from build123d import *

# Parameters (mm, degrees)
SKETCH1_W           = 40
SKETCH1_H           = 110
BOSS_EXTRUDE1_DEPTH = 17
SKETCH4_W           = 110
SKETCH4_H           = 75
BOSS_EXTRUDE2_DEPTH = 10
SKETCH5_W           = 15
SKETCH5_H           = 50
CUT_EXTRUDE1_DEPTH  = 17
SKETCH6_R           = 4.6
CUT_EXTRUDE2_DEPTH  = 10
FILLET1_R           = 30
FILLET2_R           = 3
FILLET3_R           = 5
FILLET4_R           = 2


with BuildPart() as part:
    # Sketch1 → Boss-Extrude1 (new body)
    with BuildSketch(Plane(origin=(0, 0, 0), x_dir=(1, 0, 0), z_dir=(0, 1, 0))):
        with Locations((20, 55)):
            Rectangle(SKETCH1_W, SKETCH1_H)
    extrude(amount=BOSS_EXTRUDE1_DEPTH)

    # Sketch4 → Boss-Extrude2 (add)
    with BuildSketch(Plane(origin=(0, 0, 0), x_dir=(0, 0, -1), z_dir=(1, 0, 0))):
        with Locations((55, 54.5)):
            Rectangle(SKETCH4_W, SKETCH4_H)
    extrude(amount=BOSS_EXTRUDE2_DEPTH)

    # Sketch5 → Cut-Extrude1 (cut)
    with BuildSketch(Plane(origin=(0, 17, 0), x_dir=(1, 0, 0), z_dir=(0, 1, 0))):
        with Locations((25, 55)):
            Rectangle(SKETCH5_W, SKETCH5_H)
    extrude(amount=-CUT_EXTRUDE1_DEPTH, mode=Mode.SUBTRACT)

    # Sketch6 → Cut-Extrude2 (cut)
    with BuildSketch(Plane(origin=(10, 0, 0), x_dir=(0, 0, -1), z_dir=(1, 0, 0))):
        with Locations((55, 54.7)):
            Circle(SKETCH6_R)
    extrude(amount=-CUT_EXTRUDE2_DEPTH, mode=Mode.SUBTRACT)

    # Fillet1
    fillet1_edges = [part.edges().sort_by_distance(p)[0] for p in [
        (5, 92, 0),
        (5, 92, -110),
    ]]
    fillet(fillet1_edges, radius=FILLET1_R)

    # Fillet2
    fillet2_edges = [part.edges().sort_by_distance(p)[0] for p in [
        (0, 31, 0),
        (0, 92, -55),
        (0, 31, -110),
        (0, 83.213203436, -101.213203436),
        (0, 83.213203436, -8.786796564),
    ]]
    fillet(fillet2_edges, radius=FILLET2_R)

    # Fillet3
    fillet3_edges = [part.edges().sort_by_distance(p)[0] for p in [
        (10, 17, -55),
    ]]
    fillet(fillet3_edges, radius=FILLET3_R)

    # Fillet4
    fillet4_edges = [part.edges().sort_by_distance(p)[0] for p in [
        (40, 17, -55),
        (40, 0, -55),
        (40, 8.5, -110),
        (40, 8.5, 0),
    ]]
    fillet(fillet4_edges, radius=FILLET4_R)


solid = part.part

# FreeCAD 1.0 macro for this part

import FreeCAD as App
import Part
import Sketcher

V = App.Vector
Q = App.Units.Quantity


def edges_at(feature, points):
    """Names of the edges that pass closest to the given points."""
    edges = feature.Shape.Edges
    near = lambda p: min(range(len(edges)), key=lambda i: edges[i].distToShape(Part.Vertex(*p))[0])
    return sorted({f"Edge{near(p) + 1}" for p in points})

doc = App.newDocument("Part")
body = doc.addObject("PartDesign::Body", "Body")

# Sketch on XZ plane
sketch1 = body.newObject("Sketcher::SketchObject", "Sketch")
sketch1.AttachmentSupport = (doc.getObject("XZ_Plane"), [""])
sketch1.MapMode = "FlatFace"
sketch1.addGeometry([
    Part.LineSegment(V(0, -110, 0), V(0, 0, 0)),
    Part.LineSegment(V(0, 0, 0), V(40, 0, 0)),
    Part.LineSegment(V(40, 0, 0), V(40, -110, 0)),
    Part.LineSegment(V(40, -110, 0), V(0, -110, 0)),
], False)
sketch1.addConstraint([
    Sketcher.Constraint("Coincident", 0, 2, 1, 1),
    Sketcher.Constraint("Coincident", 1, 2, 2, 1),
    Sketcher.Constraint("Coincident", 2, 2, 3, 1),
    Sketcher.Constraint("Coincident", 3, 2, 0, 1),
    Sketcher.Constraint("Vertical", 0),
    Sketcher.Constraint("Horizontal", 1),
    Sketcher.Constraint("Vertical", 2),
    Sketcher.Constraint("Horizontal", 3),
    Sketcher.Constraint("Coincident", 0, 2, -1, 1),
    Sketcher.Constraint("DistanceX", 1, 1, 1, 2, Q("40 mm")),
    Sketcher.Constraint("DistanceY", 0, 1, 0, 2, Q("110 mm")),
])
pad1 = body.newObject("PartDesign::Pad", "Pad")
pad1.Profile = sketch1
pad1.Length = 17
pad1.Reversed = True

# Sketch on YZ plane
sketch2 = body.newObject("Sketcher::SketchObject", "Sketch001")
sketch2.AttachmentSupport = (doc.getObject("YZ_Plane"), [""])
sketch2.MapMode = "FlatFace"
sketch2.addGeometry([
    Part.LineSegment(V(92, 0, 0), V(17, 0, 0)),
    Part.LineSegment(V(17, 0, 0), V(17, -110, 0)),
    Part.LineSegment(V(17, -110, 0), V(92, -110, 0)),
    Part.LineSegment(V(92, -110, 0), V(92, 0, 0)),
], False)
sketch2.addConstraint([
    Sketcher.Constraint("Coincident", 0, 2, 1, 1),
    Sketcher.Constraint("Coincident", 1, 2, 2, 1),
    Sketcher.Constraint("Coincident", 2, 2, 3, 1),
    Sketcher.Constraint("Coincident", 3, 2, 0, 1),
    Sketcher.Constraint("Horizontal", 0),
    Sketcher.Constraint("Vertical", 1),
    Sketcher.Constraint("Horizontal", 2),
    Sketcher.Constraint("Vertical", 3),
    Sketcher.Constraint("PointOnObject", 0, 2, -1),
    Sketcher.Constraint("DistanceX", 0, 2, 0, 1, Q("75 mm")),
    Sketcher.Constraint("DistanceY", 1, 2, 1, 1, Q("110 mm")),
    Sketcher.Constraint("DistanceX", -1, 1, 0, 2, Q("17 mm")),
])
pad2 = body.newObject("PartDesign::Pad", "Pad001")
pad2.Profile = sketch2
pad2.Length = 10

# Sketch on XZ plane
sketch3 = body.newObject("Sketcher::SketchObject", "Sketch002")
sketch3.AttachmentSupport = (doc.getObject("XZ_Plane"), [""])
sketch3.MapMode = "FlatFace"
sketch3.AttachmentOffset = App.Placement(V(0, 0, -17), App.Rotation())
sketch3.addGeometry([
    Part.LineSegment(V(18, -80, 0), V(18, -30, 0)),
    Part.LineSegment(V(18, -30, 0), V(32, -30, 0)),
    Part.LineSegment(V(32, -30, 0), V(32, -80, 0)),
    Part.LineSegment(V(32, -80, 0), V(18, -80, 0)),
], False)
sketch3.addConstraint([
    Sketcher.Constraint("Coincident", 0, 2, 1, 1),
    Sketcher.Constraint("Coincident", 1, 2, 2, 1),
    Sketcher.Constraint("Coincident", 2, 2, 3, 1),
    Sketcher.Constraint("Coincident", 3, 2, 0, 1),
    Sketcher.Constraint("Vertical", 0),
    Sketcher.Constraint("Horizontal", 1),
    Sketcher.Constraint("Vertical", 2),
    Sketcher.Constraint("Horizontal", 3),
    Sketcher.Constraint("DistanceX", 1, 1, 1, 2, Q("15 mm")),
    Sketcher.Constraint("DistanceY", 0, 1, 0, 2, Q("50 mm")),
    Sketcher.Constraint("DistanceY", 0, 2, -1, 1, Q("30 mm")),
    Sketcher.Constraint("DistanceX", -1, 1, 0, 2, Q("17.5 mm")),
])
pocket1 = body.newObject("PartDesign::Pocket", "Pocket")
pocket1.Profile = sketch3
pocket1.Length = 17
pocket1.Reversed = True

# Sketch on YZ plane
sketch4 = body.newObject("Sketcher::SketchObject", "Sketch003")
sketch4.AttachmentSupport = (doc.getObject("YZ_Plane"), [""])
sketch4.MapMode = "FlatFace"
sketch4.AttachmentOffset = App.Placement(V(0, 0, 10), App.Rotation())
sketch4.addGeometry(Part.Circle(V(54.7, -55, 0), V(0, 0, 1), 4.6), False)
sketch4.addConstraint([
    Sketcher.Constraint("Diameter", 0, Q("9.2 mm")),
    Sketcher.Constraint("DistanceY", 0, 3, -1, 1, Q("55 mm")),
    Sketcher.Constraint("DistanceX", -1, 1, 0, 3, Q("54.7 mm")),
])
pocket2 = body.newObject("PartDesign::Pocket", "Pocket001")
pocket2.Profile = sketch4
pocket2.Length = 10
doc.recompute()

fillet = body.newObject("PartDesign::Fillet", "Fillet")
fillet.Base = (pocket2, edges_at(pocket2, [(5, 92, 0), (5, 92, -110)]))
fillet.Radius = 30
doc.recompute()

fillet2 = body.newObject("PartDesign::Fillet", "Fillet001")
fillet2.Base = (fillet, edges_at(fillet, [
    (0, 31, 0),
    (0, 92, -55),
    (0, 31, -110),
    (0, 83.213, -101.213),
    (0, 83.213, -8.787),
]))
fillet2.Radius = 3
doc.recompute()

fillet3 = body.newObject("PartDesign::Fillet", "Fillet002")
fillet3.Base = (fillet2, edges_at(fillet2, [(10, 17, -55)]))
fillet3.Radius = 5
doc.recompute()

fillet4 = body.newObject("PartDesign::Fillet", "Fillet003")
fillet4.Base = (fillet3, edges_at(fillet3, [
    (40, 17, -55),
    (40, 0, -55),
    (40, 8.5, -110),
    (40, 8.5, 0),
]))
fillet4.Radius = 2

doc.recompute()
